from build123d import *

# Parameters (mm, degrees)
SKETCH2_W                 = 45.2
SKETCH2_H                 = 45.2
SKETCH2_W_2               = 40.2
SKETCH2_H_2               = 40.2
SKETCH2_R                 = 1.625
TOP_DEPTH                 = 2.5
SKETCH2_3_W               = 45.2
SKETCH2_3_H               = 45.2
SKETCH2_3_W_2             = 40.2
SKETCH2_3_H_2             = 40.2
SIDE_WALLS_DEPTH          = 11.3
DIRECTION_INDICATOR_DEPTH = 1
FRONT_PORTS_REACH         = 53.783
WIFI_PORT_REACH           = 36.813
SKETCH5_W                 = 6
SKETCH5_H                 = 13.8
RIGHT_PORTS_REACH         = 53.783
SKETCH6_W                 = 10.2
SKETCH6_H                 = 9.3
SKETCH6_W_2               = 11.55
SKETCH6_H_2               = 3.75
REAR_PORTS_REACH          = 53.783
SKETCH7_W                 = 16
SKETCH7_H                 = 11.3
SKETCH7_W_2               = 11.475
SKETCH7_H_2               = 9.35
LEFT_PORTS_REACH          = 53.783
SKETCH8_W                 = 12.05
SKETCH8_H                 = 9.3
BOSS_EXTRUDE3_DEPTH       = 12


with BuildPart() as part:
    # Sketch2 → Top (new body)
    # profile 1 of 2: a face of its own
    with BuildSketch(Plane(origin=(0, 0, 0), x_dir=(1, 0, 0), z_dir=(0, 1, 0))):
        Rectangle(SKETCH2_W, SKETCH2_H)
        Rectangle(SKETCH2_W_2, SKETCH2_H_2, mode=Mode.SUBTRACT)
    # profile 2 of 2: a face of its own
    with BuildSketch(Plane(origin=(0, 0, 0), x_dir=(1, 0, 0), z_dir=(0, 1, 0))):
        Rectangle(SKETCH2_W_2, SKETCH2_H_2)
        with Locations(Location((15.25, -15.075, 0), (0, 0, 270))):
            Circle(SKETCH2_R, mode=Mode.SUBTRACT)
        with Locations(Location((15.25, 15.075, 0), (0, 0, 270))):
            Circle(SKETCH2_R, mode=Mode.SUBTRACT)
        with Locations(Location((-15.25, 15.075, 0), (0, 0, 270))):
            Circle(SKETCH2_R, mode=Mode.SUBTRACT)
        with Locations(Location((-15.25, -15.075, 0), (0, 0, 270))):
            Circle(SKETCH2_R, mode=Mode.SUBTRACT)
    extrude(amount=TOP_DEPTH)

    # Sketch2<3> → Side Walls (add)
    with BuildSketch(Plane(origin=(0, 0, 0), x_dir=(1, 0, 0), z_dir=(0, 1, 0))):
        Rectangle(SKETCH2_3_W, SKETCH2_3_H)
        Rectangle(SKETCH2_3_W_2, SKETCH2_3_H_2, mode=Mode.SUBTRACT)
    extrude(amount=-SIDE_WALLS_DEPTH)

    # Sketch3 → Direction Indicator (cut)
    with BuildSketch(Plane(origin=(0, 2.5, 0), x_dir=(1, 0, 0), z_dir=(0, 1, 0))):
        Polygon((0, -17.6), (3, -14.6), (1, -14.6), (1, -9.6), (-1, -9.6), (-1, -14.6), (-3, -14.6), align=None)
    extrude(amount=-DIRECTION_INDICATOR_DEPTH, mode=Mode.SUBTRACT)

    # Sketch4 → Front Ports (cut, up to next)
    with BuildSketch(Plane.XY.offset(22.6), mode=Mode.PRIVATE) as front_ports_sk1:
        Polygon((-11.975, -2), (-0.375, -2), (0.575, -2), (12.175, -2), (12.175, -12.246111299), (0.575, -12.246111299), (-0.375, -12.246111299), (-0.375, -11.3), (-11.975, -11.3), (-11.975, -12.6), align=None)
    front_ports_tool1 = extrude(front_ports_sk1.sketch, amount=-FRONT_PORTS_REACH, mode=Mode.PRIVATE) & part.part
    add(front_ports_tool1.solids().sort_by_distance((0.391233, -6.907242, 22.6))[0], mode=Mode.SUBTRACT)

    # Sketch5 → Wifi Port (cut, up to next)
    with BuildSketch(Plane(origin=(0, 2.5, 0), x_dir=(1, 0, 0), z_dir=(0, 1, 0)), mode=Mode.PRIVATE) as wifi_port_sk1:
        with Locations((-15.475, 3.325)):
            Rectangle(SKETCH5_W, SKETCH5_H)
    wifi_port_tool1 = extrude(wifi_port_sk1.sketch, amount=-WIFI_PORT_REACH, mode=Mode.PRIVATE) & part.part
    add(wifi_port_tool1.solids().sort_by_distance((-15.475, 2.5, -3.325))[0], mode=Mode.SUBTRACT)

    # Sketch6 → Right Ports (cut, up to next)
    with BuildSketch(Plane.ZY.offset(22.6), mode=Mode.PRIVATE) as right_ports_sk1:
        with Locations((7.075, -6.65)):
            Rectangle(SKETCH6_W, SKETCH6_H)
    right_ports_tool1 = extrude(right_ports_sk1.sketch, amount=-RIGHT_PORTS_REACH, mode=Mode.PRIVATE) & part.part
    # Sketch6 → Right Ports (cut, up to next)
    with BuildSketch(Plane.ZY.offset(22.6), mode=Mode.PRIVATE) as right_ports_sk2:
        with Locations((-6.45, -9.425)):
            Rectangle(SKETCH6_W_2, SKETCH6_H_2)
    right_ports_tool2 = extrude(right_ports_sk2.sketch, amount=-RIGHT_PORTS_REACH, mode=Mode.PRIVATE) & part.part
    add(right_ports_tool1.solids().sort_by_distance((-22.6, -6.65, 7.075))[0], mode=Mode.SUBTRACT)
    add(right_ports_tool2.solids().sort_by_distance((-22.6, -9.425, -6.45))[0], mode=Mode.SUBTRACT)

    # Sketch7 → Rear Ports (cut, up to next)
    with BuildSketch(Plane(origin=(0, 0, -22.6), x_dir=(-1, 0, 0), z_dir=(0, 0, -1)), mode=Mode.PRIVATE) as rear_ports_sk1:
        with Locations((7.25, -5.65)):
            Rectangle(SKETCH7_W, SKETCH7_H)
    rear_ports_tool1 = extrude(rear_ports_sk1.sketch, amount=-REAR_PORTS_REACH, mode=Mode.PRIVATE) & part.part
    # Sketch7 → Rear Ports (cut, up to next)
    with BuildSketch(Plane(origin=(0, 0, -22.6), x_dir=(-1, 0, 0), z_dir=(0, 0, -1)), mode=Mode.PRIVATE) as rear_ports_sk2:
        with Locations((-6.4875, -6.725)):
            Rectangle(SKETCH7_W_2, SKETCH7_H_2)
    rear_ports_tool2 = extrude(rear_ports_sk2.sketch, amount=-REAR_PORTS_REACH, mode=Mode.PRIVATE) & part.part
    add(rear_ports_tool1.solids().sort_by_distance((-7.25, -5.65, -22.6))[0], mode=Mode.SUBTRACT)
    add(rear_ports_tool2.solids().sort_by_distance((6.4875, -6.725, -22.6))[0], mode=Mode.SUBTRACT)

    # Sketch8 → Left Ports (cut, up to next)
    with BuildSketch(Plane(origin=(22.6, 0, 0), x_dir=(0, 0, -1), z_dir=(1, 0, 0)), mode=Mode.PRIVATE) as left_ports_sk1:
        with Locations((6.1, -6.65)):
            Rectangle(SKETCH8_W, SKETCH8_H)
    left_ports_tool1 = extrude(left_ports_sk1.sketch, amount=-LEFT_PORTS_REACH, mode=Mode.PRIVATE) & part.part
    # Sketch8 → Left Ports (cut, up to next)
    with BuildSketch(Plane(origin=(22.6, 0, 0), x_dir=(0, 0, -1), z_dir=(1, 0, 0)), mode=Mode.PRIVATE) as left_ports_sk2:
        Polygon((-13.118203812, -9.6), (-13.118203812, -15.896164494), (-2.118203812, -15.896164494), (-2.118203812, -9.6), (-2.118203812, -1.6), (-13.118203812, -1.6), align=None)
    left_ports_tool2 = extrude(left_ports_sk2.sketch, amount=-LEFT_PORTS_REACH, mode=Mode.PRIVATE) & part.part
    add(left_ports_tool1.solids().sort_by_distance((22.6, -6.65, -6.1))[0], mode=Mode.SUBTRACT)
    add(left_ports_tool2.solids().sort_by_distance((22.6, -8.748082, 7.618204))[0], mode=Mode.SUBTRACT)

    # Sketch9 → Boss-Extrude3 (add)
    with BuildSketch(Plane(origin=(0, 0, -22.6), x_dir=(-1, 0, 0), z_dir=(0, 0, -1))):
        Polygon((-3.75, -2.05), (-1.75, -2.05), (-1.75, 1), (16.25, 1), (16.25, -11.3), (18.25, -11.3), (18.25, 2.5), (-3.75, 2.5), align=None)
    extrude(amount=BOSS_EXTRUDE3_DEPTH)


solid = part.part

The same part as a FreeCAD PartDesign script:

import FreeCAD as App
import Part
import Sketcher


def add_polygon(sketch, points):
    """Adds a closed chain of lines whose ends are joined by coincident constraints."""
    first, n = sketch.GeometryCount, len(points)
    for a, b in zip(points, points[1:] + points[:1]):
        sketch.addGeometry(Part.LineSegment(App.Vector(*a, 0), App.Vector(*b, 0)), False)
    for i in range(n):
        sketch.addConstraint(Sketcher.Constraint("Coincident", first + i, 2, first + (i + 1) % n, 1))

doc = App.newDocument("Part")
params = doc.addObject("Spreadsheet::Sheet", "Params")
for row, (alias, value) in enumerate([
    ("sketch1_diameter", "3.25 mm"),
    ("sketch1_width", "45.2 mm"),
    ("pad1_length", "2.5 mm"),
    ("sketch2_width", "45.2 mm"),
    ("sketch2_width2", "40.2 mm"),
    ("pad2_length", "11.3 mm"),
    ("sketch3_width", "2 mm"),
    ("sketch3_height", "5 mm"),
    ("pocket1_length", "1 mm"),
    ("sketch4_width", "11.6 mm"),
    ("sketch4_height", "9.3 mm"),
    ("sketch4_width2", "24.15 mm"),
    ("sketch5_width", "6 mm"),
    ("sketch5_height", "13.8 mm"),
    ("sketch6_width", "9.3 mm"),
    ("sketch6_height", "10.2 mm"),
    ("sketch7_width", "3.75 mm"),
    ("sketch7_height", "11.55 mm"),
    ("sketch8_width", "16 mm"),
    ("sketch8_height", "11.3 mm"),
    ("sketch9_height", "9.35 mm"),
    ("sketch10_width", "9.3 mm"),
    ("sketch10_height", "12.05 mm"),
    ("sketch11_height", "11 mm"),
    ("sketch12_width", "2 mm"),
    ("sketch12_width2", "18 mm"),
    ("sketch12_height", "12.3 mm"),
    ("sketch12_height2", "13.8 mm"),
    ("sketch12_height3", "3.05 mm"),
    ("pad3_length", "12 mm"),
], start=1):
    params.set(f"A{row}", alias)
    params.set(f"B{row}", "=" + value)
    params.setAlias(f"B{row}", alias)

body = doc.addObject("PartDesign::Body", "Body")

# Sketch on XZ plane
sketch1 = body.newObject("Sketcher::SketchObject", "Sketch")
sketch1.AttachmentSupport = (doc.getObject("XZ_Plane"), [""])
sketch1.MapMode = "FlatFace"
add_polygon(sketch1, [(-22.6, -22.6), (-22.6, 22.6), (22.6, 22.6), (22.6, -22.6)])  # lines 0-3
sketch1.addGeometry(Part.Circle(App.Vector(-15.2, 15.1, 0), App.Vector(0, 0, 1), 1.6), False)  # 4
sketch1.addGeometry(Part.Circle(App.Vector(15.2, -15.1, 0), App.Vector(0, 0, 1), 1.6), False)  # 5
sketch1.addGeometry(Part.Circle(App.Vector(15.2, 15.1, 0), App.Vector(0, 0, 1), 1.6), False)  # 6
sketch1.addGeometry(Part.Circle(App.Vector(-15.2, -15.1, 0), App.Vector(0, 0, 1), 1.6), False)  # 7
sketch1.addConstraint([
    Sketcher.Constraint("Vertical", 0),
    Sketcher.Constraint("Horizontal", 1),
    Sketcher.Constraint("Vertical", 2),
    Sketcher.Constraint("Horizontal", 3),
    Sketcher.Constraint("Equal", 4, 5),
    Sketcher.Constraint("Equal", 5, 6),
    Sketcher.Constraint("Equal", 6, 7),
    Sketcher.Constraint("Symmetric", 4, 3, 5, 3, -1, 1),
    Sketcher.Constraint("Symmetric", 6, 3, 7, 3, -1, 1),
    Sketcher.Constraint("Symmetric", 0, 2, 2, 2, -1, 1),
    Sketcher.Constraint("Symmetric", 4, 3, 6, 3, -2),
    Sketcher.Constraint("Equal", 3, 0),
    Sketcher.Constraint("Diameter", 4, 3.25),
    Sketcher.Constraint("DistanceX", 1, 1, 1, 2, 45.2),
    Sketcher.Constraint("DistanceX", 4, 3, 5, 3, 30.5),
    Sketcher.Constraint("DistanceY", 5, 3, 4, 3, 30.15),
])
sketch1.setExpression("Constraints[16]", "Params.sketch1_diameter")
sketch1.setExpression("Constraints[17]", "Params.sketch1_width")
pad1 = body.newObject("PartDesign::Pad", "Pad")
pad1.Profile = sketch1
pad1.setExpression("Length", "Params.pad1_length")
pad1.Reversed = True

# Sketch on XZ plane
sketch2 = body.newObject("Sketcher::SketchObject", "Sketch001")
sketch2.AttachmentSupport = (doc.getObject("XZ_Plane"), [""])
sketch2.MapMode = "FlatFace"
add_polygon(sketch2, [(-23, -23), (-23, 23), (23, 23), (23, -23)])  # lines 0-3
add_polygon(sketch2, [(20, 20), (-20, 20), (-20, -20), (20, -20)])  # lines 4-7
sketch2.addConstraint([
    Sketcher.Constraint("Vertical", 0),
    Sketcher.Constraint("Horizontal", 1),
    Sketcher.Constraint("Vertical", 2),
    Sketcher.Constraint("Horizontal", 3),
    Sketcher.Constraint("Horizontal", 4),
    Sketcher.Constraint("Vertical", 5),
    Sketcher.Constraint("Horizontal", 6),
    Sketcher.Constraint("Vertical", 7),
    Sketcher.Constraint("Symmetric", 0, 2, 2, 2, -1, 1),
    Sketcher.Constraint("Symmetric", 4, 2, 6, 2, -1, 1),
    Sketcher.Constraint("Equal", 3, 0),
    Sketcher.Constraint("Equal", 6, 5),
    Sketcher.Constraint("DistanceX", 1, 1, 1, 2, 45.2),
    Sketcher.Constraint("DistanceX", 4, 2, 4, 1, 40.2),
])
sketch2.setExpression("Constraints[20]", "Params.sketch2_width")
sketch2.setExpression("Constraints[21]", "Params.sketch2_width2")
pad2 = body.newObject("PartDesign::Pad", "Pad001")
pad2.Profile = sketch2
pad2.setExpression("Length", "Params.pad2_length")

# Sketch on XZ plane
sketch3 = body.newObject("Sketcher::SketchObject", "Sketch002")
sketch3.AttachmentSupport = (doc.getObject("XZ_Plane"), [""])
sketch3.MapMode = "FlatFace"
sketch3.AttachmentOffset = App.Placement(App.Vector(0, 0, -2.5), App.Rotation())
add_polygon(sketch3, [(0, 17.6), (3, 14.6), (1, 14.6), (1, 9.6), (-1, 9.6), (-1, 14.6), (-3, 14.6)])  # lines 0-6
sketch3.addConstraint([
    Sketcher.Constraint("Horizontal", 1),
    Sketcher.Constraint("Vertical", 2),
    Sketcher.Constraint("Horizontal", 3),
    Sketcher.Constraint("Vertical", 4),
    Sketcher.Constraint("Horizontal", 5),
    Sketcher.Constraint("Symmetric", 1, 2, 4, 2, -2),
    Sketcher.Constraint("PointOnObject", 6, 2, -2),
    Sketcher.Constraint("Perpendicular", 0, 6),
    Sketcher.Constraint("Equal", 1, 3),
    Sketcher.Constraint("Equal", 3, 5),
    Sketcher.Constraint("DistanceX", 1, 2, 1, 1, 2.0),
    Sketcher.Constraint("DistanceY", 2, 2, 2, 1, 5.0),
    Sketcher.Constraint("DistanceY", -1, 1, 0, 2, 14.6),
])
sketch3.setExpression("Constraints[17]", "Params.sketch3_width")
sketch3.setExpression("Constraints[18]", "Params.sketch3_height")
pocket1 = body.newObject("PartDesign::Pocket", "Pocket")
pocket1.Profile = sketch3
pocket1.setExpression("Length", "Params.pocket1_length")
pocket1.Reversed = True

# Sketch on XY plane
sketch4 = body.newObject("Sketcher::SketchObject", "Sketch003")
sketch4.AttachmentSupport = (doc.getObject("XY_Plane"), [""])
sketch4.MapMode = "FlatFace"
sketch4.AttachmentOffset = App.Placement(App.Vector(0, 0, 22.6), App.Rotation())
add_polygon(sketch4, [(12.2, -2), (-12, -2), (-12, -11.3), (-0.4, -11.3), (-0.4, -12.2), (12.2, -12.2)])  # lines 0-5
sketch4.addConstraint([
    Sketcher.Constraint("Horizontal", 0),
    Sketcher.Constraint("Vertical", 1),
    Sketcher.Constraint("Horizontal", 2),
    Sketcher.Constraint("Vertical", 3),
    Sketcher.Constraint("Horizontal", 4),
    Sketcher.Constraint("Vertical", 5),
    Sketcher.Constraint("DistanceX", 2, 1, 2, 2, 11.6),
    Sketcher.Constraint("DistanceY", 1, 2, 1, 1, 9.3),
    Sketcher.Constraint("DistanceY", 0, 2, -1, 1, 2.0),
    Sketcher.Constraint("DistanceX", 0, 2, 0, 1, 24.15),
    Sketcher.Constraint("DistanceX", 0, 2, -1, 1, 11.975),
    Sketcher.Constraint("DistanceY", 3, 2, 3, 1, 0.946111),
])
sketch4.setExpression("Constraints[12]", "Params.sketch4_width")
sketch4.setExpression("Constraints[13]", "Params.sketch4_height")
sketch4.setExpression("Constraints[15]", "Params.sketch4_width2")
pocket2 = body.newObject("PartDesign::Pocket", "Pocket001")
pocket2.Profile = sketch4
pocket2.Type = "UpToFirst"

# Sketch on XZ plane
sketch5 = body.newObject("Sketcher::SketchObject", "Sketch004")
sketch5.AttachmentSupport = (doc.getObject("XZ_Plane"), [""])
sketch5.MapMode = "FlatFace"
sketch5.AttachmentOffset = App.Placement(App.Vector(0, 0, -2.5), App.Rotation())
add_polygon(sketch5, [(-18, -10), (-18, 4), (-12, 4), (-12, -10)])  # lines 0-3
sketch5.addConstraint([
    Sketcher.Constraint("Vertical", 0),
    Sketcher.Constraint("Horizontal", 1),
    Sketcher.Constraint("Vertical", 2),
    Sketcher.Constraint("Horizontal", 3),
    Sketcher.Constraint("DistanceX", 1, 1, 1, 2, 6.0),
    Sketcher.Constraint("DistanceY", 0, 1, 0, 2, 13.8),
    Sketcher.Constraint("DistanceX", 0, 2, -1, 1, 18.475),
    Sketcher.Constraint("DistanceY", -1, 1, 0, 2, 3.575),
])
sketch5.setExpression("Constraints[8]", "Params.sketch5_width")
sketch5.setExpression("Constraints[9]", "Params.sketch5_height")
pocket3 = body.newObject("PartDesign::Pocket", "Pocket002")
pocket3.Profile = sketch5
pocket3.Type = "UpToFirst"
pocket3.Reversed = True

# Sketch on YZ plane
sketch6 = body.newObject("Sketcher::SketchObject", "Sketch005")
sketch6.AttachmentSupport = (doc.getObject("YZ_Plane"), [""])
sketch6.MapMode = "FlatFace"
sketch6.AttachmentOffset = App.Placement(App.Vector(0, 0, -22.6), App.Rotation())
add_polygon(sketch6, [(-2, 2), (-11, 2), (-11, 12), (-2, 12)])  # lines 0-3
sketch6.addConstraint([
    Sketcher.Constraint("Horizontal", 0),
    Sketcher.Constraint("Vertical", 1),
    Sketcher.Constraint("Horizontal", 2),
    Sketcher.Constraint("Vertical", 3),
    Sketcher.Constraint("DistanceX", 0, 2, 0, 1, 9.3),
    Sketcher.Constraint("DistanceY", 1, 1, 1, 2, 10.2),
    Sketcher.Constraint("DistanceX", 2, 2, -1, 1, 2.0),
    Sketcher.Constraint("DistanceY", -1, 1, 0, 2, 1.975),
])
sketch6.setExpression("Constraints[8]", "Params.sketch6_width")
sketch6.setExpression("Constraints[9]", "Params.sketch6_height")
pocket4 = body.newObject("PartDesign::Pocket", "Pocket003")
pocket4.Profile = sketch6
pocket4.Type = "UpToFirst"
pocket4.Reversed = True

# Sketch on YZ plane
sketch7 = body.newObject("Sketcher::SketchObject", "Sketch006")
sketch7.AttachmentSupport = (doc.getObject("YZ_Plane"), [""])
sketch7.MapMode = "FlatFace"
sketch7.AttachmentOffset = App.Placement(App.Vector(0, 0, -22.6), App.Rotation())
add_polygon(sketch7, [(-7.5, -12.2), (-11.3, -12.2), (-11.3, -0.7), (-7.5, -0.7)])  # lines 0-3
sketch7.addConstraint([
    Sketcher.Constraint("Horizontal", 0),
    Sketcher.Constraint("Vertical", 1),
    Sketcher.Constraint("Horizontal", 2),
    Sketcher.Constraint("Vertical", 3),
    Sketcher.Constraint("DistanceX", 0, 2, 0, 1, 3.75),
    Sketcher.Constraint("DistanceY", 1, 1, 1, 2, 11.55),
    Sketcher.Constraint("DistanceX", 0, 2, -1, 1, 11.3),
    Sketcher.Constraint("DistanceY", 0, 2, -1, 1, 12.225),
])
sketch7.setExpression("Constraints[8]", "Params.sketch7_width")
sketch7.setExpression("Constraints[9]", "Params.sketch7_height")
pocket5 = body.newObject("PartDesign::Pocket", "Pocket004")
pocket5.Profile = sketch7
pocket5.Type = "UpToFirst"
pocket5.Reversed = True

# Sketch on XY plane
sketch8 = body.newObject("Sketcher::SketchObject", "Sketch007")
sketch8.AttachmentSupport = (doc.getObject("XY_Plane"), [""])
sketch8.MapMode = "FlatFace"
sketch8.AttachmentOffset = App.Placement(App.Vector(0, 0, -22.6), App.Rotation())
add_polygon(sketch8, [(1, 0), (1, -11), (-15, -11), (-15, 0)])  # lines 0-3
sketch8.addConstraint([
    Sketcher.Constraint("Vertical", 0),
    Sketcher.Constraint("Horizontal", 1),
    Sketcher.Constraint("Vertical", 2),
    Sketcher.Constraint("Horizontal", 3),
    Sketcher.Constraint("PointOnObject", 2, 2, -1),
    Sketcher.Constraint("DistanceX", 1, 2, 1, 1, 16.0),
    Sketcher.Constraint("DistanceY", 0, 2, 0, 1, 11.3),
    Sketcher.Constraint("DistanceX", -1, 1, 0, 2, 0.75),
])
sketch8.setExpression("Constraints[9]", "Params.sketch8_width")
sketch8.setExpression("Constraints[10]", "Params.sketch8_height")
pocket6 = body.newObject("PartDesign::Pocket", "Pocket005")
pocket6.Profile = sketch8
pocket6.Type = "UpToFirst"
pocket6.Reversed = True

# Sketch on XY plane
sketch9 = body.newObject("Sketcher::SketchObject", "Sketch008")
sketch9.AttachmentSupport = (doc.getObject("XY_Plane"), [""])
sketch9.MapMode = "FlatFace"
sketch9.AttachmentOffset = App.Placement(App.Vector(0, 0, -22.6), App.Rotation())
add_polygon(sketch9, [(12, -2), (12, -11), (1, -11), (1, -2)])  # lines 0-3
sketch9.addConstraint([
    Sketcher.Constraint("Vertical", 0),
    Sketcher.Constraint("Horizontal", 1),
    Sketcher.Constraint("Vertical", 2),
    Sketcher.Constraint("Horizontal", 3),
    Sketcher.Constraint("DistanceY", 0, 2, 0, 1, 9.35),
    Sketcher.Constraint("DistanceY", 0, 2, -1, 1, 11.4),
    Sketcher.Constraint("DistanceX", 1, 2, 1, 1, 11.475),
    Sketcher.Constraint("DistanceX", -1, 1, 1, 2, 0.75),
])
sketch9.setExpression("Constraints[8]", "Params.sketch9_height")
pocket7 = body.newObject("PartDesign::Pocket", "Pocket006")
pocket7.Profile = sketch9
pocket7.Type = "UpToFirst"
pocket7.Reversed = True

# Sketch on YZ plane
sketch10 = body.newObject("Sketcher::SketchObject", "Sketch009")
sketch10.AttachmentSupport = (doc.getObject("YZ_Plane"), [""])
sketch10.MapMode = "FlatFace"
sketch10.AttachmentOffset = App.Placement(App.Vector(0, 0, 22.6), App.Rotation())
add_polygon(sketch10, [(-2, 0), (-11, 0), (-11, -12), (-2, -12)])  # lines 0-3
sketch10.addConstraint([
    Sketcher.Constraint("Horizontal", 0),
    Sketcher.Constraint("Vertical", 1),
    Sketcher.Constraint("Horizontal", 2),
    Sketcher.Constraint("Vertical", 3),
    Sketcher.Constraint("DistanceX", 0, 2, 0, 1, 9.3),
    Sketcher.Constraint("DistanceX", 2, 2, -1, 1, 2.0),
    Sketcher.Constraint("DistanceY", 1, 2, 1, 1, 12.05),
    Sketcher.Constraint("DistanceY", 0, 2, -1, 1, 0.075),
])
sketch10.setExpression("Constraints[8]", "Params.sketch10_width")
sketch10.setExpression("Constraints[10]", "Params.sketch10_height")
pocket8 = body.newObject("PartDesign::Pocket", "Pocket007")
pocket8.Profile = sketch10
pocket8.Type = "UpToFirst"

# Sketch on YZ plane
sketch11 = body.newObject("Sketcher::SketchObject", "Sketch010")
sketch11.AttachmentSupport = (doc.getObject("YZ_Plane"), [""])
sketch11.MapMode = "FlatFace"
sketch11.AttachmentOffset = App.Placement(App.Vector(0, 0, 22.6), App.Rotation())
add_polygon(sketch11, [(-16, 13), (-16, 2), (-2, 2), (-2, 13)])  # lines 0-3
sketch11.addConstraint([
    Sketcher.Constraint("Vertical", 0),
    Sketcher.Constraint("Horizontal", 1),
    Sketcher.Constraint("Vertical", 2),
    Sketcher.Constraint("Horizontal", 3),
    Sketcher.Constraint("DistanceY", 0, 2, 0, 1, 11.0),
    Sketcher.Constraint("DistanceX", 1, 2, -1, 1, 1.6),
    Sketcher.Constraint("DistanceX", 1, 1, 1, 2, 14.296164),
    Sketcher.Constraint("DistanceY", -1, 1, 0, 2, 2.118204),
])
sketch11.setExpression("Constraints[8]", "Params.sketch11_height")
pocket9 = body.newObject("PartDesign::Pocket", "Pocket008")
pocket9.Profile = sketch11
pocket9.Type = "UpToFirst"

# Sketch on XY plane
sketch12 = body.newObject("Sketcher::SketchObject", "Sketch011")
sketch12.AttachmentSupport = (doc.getObject("XY_Plane"), [""])
sketch12.MapMode = "FlatFace"
sketch12.AttachmentOffset = App.Placement(App.Vector(0, 0, -22.6), App.Rotation())
add_polygon(sketch12, [(3.8, -2), (1.8, -2), (1.8, 1), (-16.2, 1), (-16.2, -11.3), (-18.2, -11.3), (-18.2, 2.5), (3.8, 2.5)])  # lines 0-7
sketch12.addConstraint([
    Sketcher.Constraint("Horizontal", 0),
    Sketcher.Constraint("Vertical", 1),
    Sketcher.Constraint("Horizontal", 2),
    Sketcher.Constraint("Vertical", 3),
    Sketcher.Constraint("Horizontal", 4),
    Sketcher.Constraint("Vertical", 5),
    Sketcher.Constraint("Horizontal", 6),
    Sketcher.Constraint("Vertical", 7),
    Sketcher.Constraint("Equal", 0, 4),
    Sketcher.Constraint("DistanceX", 0, 2, 0, 1, 2.0),
    Sketcher.Constraint("DistanceX", 2, 2, 2, 1, 18.0),
    Sketcher.Constraint("DistanceY", 3, 2, 3, 1, 12.3),
    Sketcher.Constraint("DistanceY", 5, 1, 5, 2, 13.8),
    Sketcher.Constraint("DistanceY", -1, 1, 1, 2, 1.0),
    Sketcher.Constraint("DistanceY", 1, 1, 1, 2, 3.05),
    Sketcher.Constraint("DistanceX", -1, 1, 0, 2, 1.75),
])
sketch12.setExpression("Constraints[17]", "Params.sketch12_width")
sketch12.setExpression("Constraints[18]", "Params.sketch12_width2")
sketch12.setExpression("Constraints[19]", "Params.sketch12_height")
sketch12.setExpression("Constraints[20]", "Params.sketch12_height2")
sketch12.setExpression("Constraints[22]", "Params.sketch12_height3")
pad3 = body.newObject("PartDesign::Pad", "Pad002")
pad3.Profile = sketch12
pad3.setExpression("Length", "Params.pad3_length")
pad3.Reversed = True

doc.recompute()
